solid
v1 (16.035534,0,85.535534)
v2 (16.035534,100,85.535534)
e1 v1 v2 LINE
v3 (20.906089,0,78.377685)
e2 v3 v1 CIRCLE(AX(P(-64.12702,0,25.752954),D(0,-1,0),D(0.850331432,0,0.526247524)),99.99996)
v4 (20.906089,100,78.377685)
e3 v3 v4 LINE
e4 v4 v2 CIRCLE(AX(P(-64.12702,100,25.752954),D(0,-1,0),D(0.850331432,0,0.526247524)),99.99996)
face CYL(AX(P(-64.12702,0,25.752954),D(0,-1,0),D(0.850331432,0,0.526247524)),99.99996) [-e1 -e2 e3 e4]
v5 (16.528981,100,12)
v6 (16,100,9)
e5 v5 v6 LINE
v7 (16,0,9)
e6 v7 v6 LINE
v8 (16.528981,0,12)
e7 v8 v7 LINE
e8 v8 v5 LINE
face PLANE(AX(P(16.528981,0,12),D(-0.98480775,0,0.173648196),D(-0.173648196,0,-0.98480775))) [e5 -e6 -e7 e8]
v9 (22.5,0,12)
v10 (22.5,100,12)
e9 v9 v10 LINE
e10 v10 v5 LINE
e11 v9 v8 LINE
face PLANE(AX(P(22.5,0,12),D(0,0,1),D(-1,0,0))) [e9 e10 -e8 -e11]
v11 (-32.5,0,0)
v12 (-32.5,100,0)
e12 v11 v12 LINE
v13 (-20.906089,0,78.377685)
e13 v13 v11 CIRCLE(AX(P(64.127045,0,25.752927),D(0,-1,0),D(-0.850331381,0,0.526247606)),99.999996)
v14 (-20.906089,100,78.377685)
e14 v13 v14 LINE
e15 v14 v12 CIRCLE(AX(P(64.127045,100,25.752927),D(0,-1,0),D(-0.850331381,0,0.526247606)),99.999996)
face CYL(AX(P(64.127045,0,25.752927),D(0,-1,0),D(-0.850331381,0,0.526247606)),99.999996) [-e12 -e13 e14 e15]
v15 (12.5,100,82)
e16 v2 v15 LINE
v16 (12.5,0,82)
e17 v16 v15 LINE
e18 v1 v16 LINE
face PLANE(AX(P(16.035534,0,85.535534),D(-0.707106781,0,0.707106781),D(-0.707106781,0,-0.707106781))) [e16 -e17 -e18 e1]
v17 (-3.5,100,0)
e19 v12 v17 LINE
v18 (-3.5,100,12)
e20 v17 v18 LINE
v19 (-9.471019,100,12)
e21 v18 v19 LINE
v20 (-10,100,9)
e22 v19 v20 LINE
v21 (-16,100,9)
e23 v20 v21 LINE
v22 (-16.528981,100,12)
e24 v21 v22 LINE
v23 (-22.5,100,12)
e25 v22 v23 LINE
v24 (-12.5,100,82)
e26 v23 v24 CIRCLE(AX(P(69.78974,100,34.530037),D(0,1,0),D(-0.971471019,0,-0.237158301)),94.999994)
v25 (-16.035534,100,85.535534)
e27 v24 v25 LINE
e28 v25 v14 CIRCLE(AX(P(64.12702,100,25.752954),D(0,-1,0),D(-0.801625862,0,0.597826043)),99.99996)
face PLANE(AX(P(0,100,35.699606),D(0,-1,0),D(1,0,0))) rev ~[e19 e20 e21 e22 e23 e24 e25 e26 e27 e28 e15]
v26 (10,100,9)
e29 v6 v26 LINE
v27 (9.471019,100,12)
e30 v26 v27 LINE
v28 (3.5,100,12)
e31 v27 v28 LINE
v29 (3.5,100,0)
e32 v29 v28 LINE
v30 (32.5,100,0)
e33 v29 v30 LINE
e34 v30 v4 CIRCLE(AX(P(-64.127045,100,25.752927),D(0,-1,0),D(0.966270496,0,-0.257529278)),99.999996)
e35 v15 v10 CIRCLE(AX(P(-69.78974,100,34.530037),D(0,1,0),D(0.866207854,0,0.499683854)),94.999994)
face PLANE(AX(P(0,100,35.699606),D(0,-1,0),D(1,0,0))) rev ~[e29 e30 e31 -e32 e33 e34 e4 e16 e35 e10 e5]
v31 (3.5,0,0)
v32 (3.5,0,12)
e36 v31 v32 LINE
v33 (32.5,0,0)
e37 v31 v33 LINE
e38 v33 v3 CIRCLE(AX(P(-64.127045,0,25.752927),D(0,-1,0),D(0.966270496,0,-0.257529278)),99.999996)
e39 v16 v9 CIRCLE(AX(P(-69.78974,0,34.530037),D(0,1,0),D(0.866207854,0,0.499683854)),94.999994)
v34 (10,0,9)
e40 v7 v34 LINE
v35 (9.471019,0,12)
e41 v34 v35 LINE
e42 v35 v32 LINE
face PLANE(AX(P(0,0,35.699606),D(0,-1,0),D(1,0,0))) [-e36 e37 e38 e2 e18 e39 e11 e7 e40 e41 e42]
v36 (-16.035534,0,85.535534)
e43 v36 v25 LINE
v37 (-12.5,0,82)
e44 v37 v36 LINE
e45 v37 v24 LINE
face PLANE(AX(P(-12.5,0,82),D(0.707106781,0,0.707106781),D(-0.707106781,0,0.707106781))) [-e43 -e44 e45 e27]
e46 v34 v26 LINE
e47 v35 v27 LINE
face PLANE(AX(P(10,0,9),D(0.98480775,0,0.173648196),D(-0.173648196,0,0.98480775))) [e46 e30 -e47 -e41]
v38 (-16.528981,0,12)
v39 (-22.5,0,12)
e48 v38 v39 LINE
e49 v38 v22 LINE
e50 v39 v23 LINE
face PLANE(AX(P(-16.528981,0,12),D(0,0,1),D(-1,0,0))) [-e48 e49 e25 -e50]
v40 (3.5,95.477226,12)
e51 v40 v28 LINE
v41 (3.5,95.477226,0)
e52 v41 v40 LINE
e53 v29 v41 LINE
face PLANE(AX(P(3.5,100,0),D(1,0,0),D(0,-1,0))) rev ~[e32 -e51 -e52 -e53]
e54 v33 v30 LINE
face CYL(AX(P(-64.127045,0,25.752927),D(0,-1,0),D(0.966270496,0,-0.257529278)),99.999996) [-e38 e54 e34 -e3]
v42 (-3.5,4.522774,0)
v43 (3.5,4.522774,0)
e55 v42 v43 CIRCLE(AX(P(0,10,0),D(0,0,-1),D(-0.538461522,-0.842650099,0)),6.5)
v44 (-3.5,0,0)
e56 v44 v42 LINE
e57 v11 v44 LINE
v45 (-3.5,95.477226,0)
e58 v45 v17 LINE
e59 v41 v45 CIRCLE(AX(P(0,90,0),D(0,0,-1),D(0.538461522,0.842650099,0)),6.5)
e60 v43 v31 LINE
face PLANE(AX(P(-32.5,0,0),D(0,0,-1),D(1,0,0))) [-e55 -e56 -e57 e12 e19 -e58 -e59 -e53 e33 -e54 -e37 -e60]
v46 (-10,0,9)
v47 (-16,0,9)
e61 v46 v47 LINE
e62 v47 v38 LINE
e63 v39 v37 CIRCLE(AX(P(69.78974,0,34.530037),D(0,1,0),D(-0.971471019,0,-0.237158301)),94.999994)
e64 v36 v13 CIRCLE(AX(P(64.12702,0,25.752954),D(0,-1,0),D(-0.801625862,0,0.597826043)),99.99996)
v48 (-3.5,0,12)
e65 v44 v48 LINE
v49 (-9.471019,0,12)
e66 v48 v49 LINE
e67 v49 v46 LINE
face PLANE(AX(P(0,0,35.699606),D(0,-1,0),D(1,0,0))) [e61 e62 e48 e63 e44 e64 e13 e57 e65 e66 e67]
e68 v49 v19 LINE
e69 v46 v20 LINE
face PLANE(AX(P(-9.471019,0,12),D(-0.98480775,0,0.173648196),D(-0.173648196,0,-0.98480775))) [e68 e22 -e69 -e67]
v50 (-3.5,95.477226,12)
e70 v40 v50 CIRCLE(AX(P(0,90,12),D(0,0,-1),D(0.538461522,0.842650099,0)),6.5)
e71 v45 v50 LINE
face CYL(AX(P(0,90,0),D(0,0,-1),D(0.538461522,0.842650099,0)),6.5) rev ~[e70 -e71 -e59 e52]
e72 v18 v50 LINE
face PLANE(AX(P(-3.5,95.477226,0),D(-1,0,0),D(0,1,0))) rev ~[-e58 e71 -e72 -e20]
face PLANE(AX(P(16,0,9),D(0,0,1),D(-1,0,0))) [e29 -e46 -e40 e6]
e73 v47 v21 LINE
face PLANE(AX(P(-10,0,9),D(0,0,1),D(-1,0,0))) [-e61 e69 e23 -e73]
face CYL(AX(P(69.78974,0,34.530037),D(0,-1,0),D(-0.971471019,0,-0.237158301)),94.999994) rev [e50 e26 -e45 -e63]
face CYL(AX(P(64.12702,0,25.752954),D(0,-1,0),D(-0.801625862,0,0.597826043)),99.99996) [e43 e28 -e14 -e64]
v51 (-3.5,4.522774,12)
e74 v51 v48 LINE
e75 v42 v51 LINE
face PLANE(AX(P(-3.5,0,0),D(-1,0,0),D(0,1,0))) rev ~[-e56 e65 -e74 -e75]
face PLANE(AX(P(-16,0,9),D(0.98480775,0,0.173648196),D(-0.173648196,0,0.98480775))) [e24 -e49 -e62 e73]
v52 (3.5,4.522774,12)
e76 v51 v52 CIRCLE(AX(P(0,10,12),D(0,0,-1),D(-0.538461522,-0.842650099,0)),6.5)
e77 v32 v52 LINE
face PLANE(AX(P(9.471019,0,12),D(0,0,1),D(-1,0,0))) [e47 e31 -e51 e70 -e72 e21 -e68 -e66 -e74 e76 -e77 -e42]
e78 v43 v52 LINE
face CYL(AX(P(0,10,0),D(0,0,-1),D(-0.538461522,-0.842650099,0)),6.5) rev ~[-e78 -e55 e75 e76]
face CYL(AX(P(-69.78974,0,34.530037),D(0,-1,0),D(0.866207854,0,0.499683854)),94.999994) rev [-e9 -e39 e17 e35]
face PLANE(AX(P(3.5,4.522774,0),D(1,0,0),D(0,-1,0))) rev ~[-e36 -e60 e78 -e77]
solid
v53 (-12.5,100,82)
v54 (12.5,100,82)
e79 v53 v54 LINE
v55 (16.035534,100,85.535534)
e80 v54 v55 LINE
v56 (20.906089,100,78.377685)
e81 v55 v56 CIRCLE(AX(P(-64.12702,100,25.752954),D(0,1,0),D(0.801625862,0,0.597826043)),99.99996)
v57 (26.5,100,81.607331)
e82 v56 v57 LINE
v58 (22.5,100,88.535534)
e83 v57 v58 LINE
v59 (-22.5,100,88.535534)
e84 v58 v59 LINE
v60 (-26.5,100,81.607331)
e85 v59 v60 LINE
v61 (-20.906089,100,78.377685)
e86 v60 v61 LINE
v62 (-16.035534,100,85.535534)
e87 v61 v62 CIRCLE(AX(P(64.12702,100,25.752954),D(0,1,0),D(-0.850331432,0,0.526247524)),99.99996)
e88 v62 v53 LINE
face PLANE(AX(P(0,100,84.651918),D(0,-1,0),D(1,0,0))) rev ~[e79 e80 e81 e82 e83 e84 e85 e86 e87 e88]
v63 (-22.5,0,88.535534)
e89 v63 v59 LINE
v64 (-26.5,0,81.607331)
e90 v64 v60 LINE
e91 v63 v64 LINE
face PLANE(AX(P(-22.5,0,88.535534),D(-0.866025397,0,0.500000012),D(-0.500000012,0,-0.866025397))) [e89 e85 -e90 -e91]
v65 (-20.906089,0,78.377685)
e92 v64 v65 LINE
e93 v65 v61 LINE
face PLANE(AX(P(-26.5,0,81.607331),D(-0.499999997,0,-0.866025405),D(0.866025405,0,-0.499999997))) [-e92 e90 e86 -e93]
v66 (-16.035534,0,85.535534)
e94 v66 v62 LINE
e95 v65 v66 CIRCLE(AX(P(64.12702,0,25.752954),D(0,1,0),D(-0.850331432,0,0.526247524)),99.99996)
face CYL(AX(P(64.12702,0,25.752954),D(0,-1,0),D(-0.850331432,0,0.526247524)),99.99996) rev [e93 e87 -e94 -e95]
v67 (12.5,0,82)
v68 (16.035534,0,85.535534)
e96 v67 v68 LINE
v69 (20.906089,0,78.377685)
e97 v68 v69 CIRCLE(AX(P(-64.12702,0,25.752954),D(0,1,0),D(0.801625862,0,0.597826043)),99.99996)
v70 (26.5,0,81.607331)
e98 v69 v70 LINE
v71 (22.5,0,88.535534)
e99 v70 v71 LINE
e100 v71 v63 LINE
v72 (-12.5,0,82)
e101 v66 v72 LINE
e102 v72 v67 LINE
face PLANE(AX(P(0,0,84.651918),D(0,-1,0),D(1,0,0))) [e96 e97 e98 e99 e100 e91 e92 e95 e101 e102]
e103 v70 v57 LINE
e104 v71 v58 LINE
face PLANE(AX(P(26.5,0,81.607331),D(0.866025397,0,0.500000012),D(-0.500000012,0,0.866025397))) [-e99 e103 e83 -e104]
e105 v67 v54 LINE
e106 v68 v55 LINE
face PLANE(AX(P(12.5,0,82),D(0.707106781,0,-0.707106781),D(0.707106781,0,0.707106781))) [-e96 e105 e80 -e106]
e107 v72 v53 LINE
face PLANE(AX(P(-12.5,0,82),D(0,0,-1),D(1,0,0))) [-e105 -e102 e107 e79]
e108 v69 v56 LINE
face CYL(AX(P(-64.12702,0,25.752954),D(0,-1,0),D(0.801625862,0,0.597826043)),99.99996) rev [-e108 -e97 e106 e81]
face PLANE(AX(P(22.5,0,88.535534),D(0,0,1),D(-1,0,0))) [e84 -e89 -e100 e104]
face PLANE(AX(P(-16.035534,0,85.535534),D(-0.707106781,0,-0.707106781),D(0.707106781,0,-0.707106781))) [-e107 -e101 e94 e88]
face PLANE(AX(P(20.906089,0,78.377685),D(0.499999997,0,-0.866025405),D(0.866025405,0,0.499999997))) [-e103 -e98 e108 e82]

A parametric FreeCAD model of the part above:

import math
import FreeCAD as App
import Part
import Sketcher
Q = App.Units.Quantity

doc = App.newDocument("Part")
body = doc.addObject("PartDesign::Body", "Body")

# Sketch on XZ plane
sketch1 = body.newObject("Sketcher::SketchObject", "Sketch")
sketch1.AttachmentSupport = (doc.getObject("XZ_Plane"), [""])
sketch1.MapMode = "FlatFace"
sketch1.addGeometry(Part.LineSegment(App.Vector(-16.5, 12, 0), App.Vector(-22.5, 12, 0)), False)
sketch1.addGeometry(Part.ArcOfCircle(Part.Circle(App.Vector(69.8, 34.5, 0), App.Vector(0, 0, 1), 95), math.radians(150), math.radians(194)), False)
sketch1.addGeometry(Part.LineSegment(App.Vector(-12.5, 82, 0), App.Vector(-16, 85.5, 0)), False)
sketch1.addGeometry(Part.ArcOfCircle(Part.Circle(App.Vector(64.1, 25.8, 0), App.Vector(0, 0, 1), 100), math.radians(143.29), math.radians(148.25)), False)
sketch1.addGeometry(Part.ArcOfCircle(Part.Circle(App.Vector(64.1, 25.8, 0), App.Vector(0, 0, 1), 100), math.radians(148), math.radians(195)), False)
sketch1.addGeometry(Part.LineSegment(App.Vector(-32.5, 0, 0), App.Vector(32.5, 0, 0)), False)
sketch1.addGeometry(Part.ArcOfCircle(Part.Circle(App.Vector(-64.1, 25.8, 0), App.Vector(0, 0, 1), 100), math.radians(-15), math.radians(32)), False)
sketch1.addGeometry(Part.ArcOfCircle(Part.Circle(App.Vector(-64.1, 25.8, 0), App.Vector(0, 0, 1), 100), math.radians(31.75), math.radians(36.71)), False)
sketch1.addGeometry(Part.LineSegment(App.Vector(16, 85.5, 0), App.Vector(12.5, 82, 0)), False)
sketch1.addGeometry(Part.ArcOfCircle(Part.Circle(App.Vector(-69.8, 34.5, 0), App.Vector(0, 0, 1), 95), math.radians(-14), math.radians(30)), False)
sketch1.addGeometry(Part.LineSegment(App.Vector(22.5, 12, 0), App.Vector(16.5, 12, 0)), False)
sketch1.addGeometry(Part.LineSegment(App.Vector(16.5, 12, 0), App.Vector(16, 9, 0)), False)
sketch1.addGeometry(Part.LineSegment(App.Vector(16, 9, 0), App.Vector(10, 9, 0)), False)
sketch1.addGeometry(Part.LineSegment(App.Vector(10, 9, 0), App.Vector(9.5, 12, 0)), False)
sketch1.addGeometry(Part.LineSegment(App.Vector(9.5, 12, 0), App.Vector(-9.5, 12, 0)), False)
sketch1.addGeometry(Part.LineSegment(App.Vector(-9.5, 12, 0), App.Vector(-10, 9, 0)), False)
sketch1.addGeometry(Part.LineSegment(App.Vector(-10, 9, 0), App.Vector(-16, 9, 0)), False)
sketch1.addGeometry(Part.LineSegment(App.Vector(-16, 9, 0), App.Vector(-16.5, 12, 0)), False)
sketch1.addConstraint(Sketcher.Constraint("Coincident", 0, 2, 1, 2))
sketch1.addConstraint(Sketcher.Constraint("Coincident", 1, 1, 2, 1))
sketch1.addConstraint(Sketcher.Constraint("Coincident", 2, 2, 3, 1))
sketch1.addConstraint(Sketcher.Constraint("Tangent", 3, 2, 4, 1))
sketch1.addConstraint(Sketcher.Constraint("Coincident", 4, 2, 5, 1))
sketch1.addConstraint(Sketcher.Constraint("Coincident", 5, 2, 6, 1))
sketch1.addConstraint(Sketcher.Constraint("Tangent", 6, 2, 7, 1))
sketch1.addConstraint(Sketcher.Constraint("Coincident", 7, 2, 8, 1))
sketch1.addConstraint(Sketcher.Constraint("Coincident", 8, 2, 9, 2))
sketch1.addConstraint(Sketcher.Constraint("Coincident", 9, 1, 10, 1))
sketch1.addConstraint(Sketcher.Constraint("Coincident", 10, 2, 11, 1))
sketch1.addConstraint(Sketcher.Constraint("Coincident", 11, 2, 12, 1))
sketch1.addConstraint(Sketcher.Constraint("Coincident", 12, 2, 13, 1))
sketch1.addConstraint(Sketcher.Constraint("Coincident", 13, 2, 14, 1))
sketch1.addConstraint(Sketcher.Constraint("Coincident", 14, 2, 15, 1))
sketch1.addConstraint(Sketcher.Constraint("Coincident", 15, 2, 16, 1))
sketch1.addConstraint(Sketcher.Constraint("Coincident", 16, 2, 17, 1))
sketch1.addConstraint(Sketcher.Constraint("Coincident", 17, 2, 0, 1))
sketch1.addConstraint(Sketcher.Constraint("Horizontal", 0))
sketch1.addConstraint(Sketcher.Constraint("Horizontal", 5))
sketch1.addConstraint(Sketcher.Constraint("Horizontal", 10))
sketch1.addConstraint(Sketcher.Constraint("Horizontal", 12))
sketch1.addConstraint(Sketcher.Constraint("Horizontal", 14))
sketch1.addConstraint(Sketcher.Constraint("Horizontal", 16))
sketch1.addConstraint(Sketcher.Constraint("Equal", 4, 6))
sketch1.addConstraint(Sketcher.Constraint("Equal", 3, 7))
sketch1.addConstraint(Sketcher.Constraint("Equal", 1, 9))
sketch1.addConstraint(Sketcher.Constraint("Symmetric", 4, 2, 5, 2, -1, 1))
sketch1.addConstraint(Sketcher.Constraint("Symmetric", 1, 3, 9, 3, -2))
sketch1.addConstraint(Sketcher.Constraint("Symmetric", 3, 2, 6, 2, -2))
sketch1.addConstraint(Sketcher.Constraint("Symmetric", 12, 2, 15, 2, -2))
sketch1.addConstraint(Sketcher.Constraint("Symmetric", 10, 2, 17, 2, -2))
sketch1.addConstraint(Sketcher.Constraint("Perpendicular", 2, 8))
sketch1.addConstraint(Sketcher.Constraint("Parallel", 11, 15))
sketch1.addConstraint(Sketcher.Constraint("Parallel", 13, 17))
sketch1.addConstraint(Sketcher.Constraint("Horizontal", 2, 2, 7, 2))
sketch1.addConstraint(Sketcher.Constraint("Horizontal", 1, 1, 8, 2))
sketch1.addConstraint(Sketcher.Constraint("Horizontal", 10, 2, 13, 2))
sketch1.addConstraint(Sketcher.Constraint("Equal", 12, 16))
sketch1.addConstraint(Sketcher.Constraint("DistanceX", 5, 1, 5, 2, Q("65 mm")))
sketch1.addConstraint(Sketcher.Constraint("DistanceX", 12, 2, 12, 1, Q("6 mm")))
sketch1.addConstraint(Sketcher.Constraint("Angle", 11, Q("-100.000001 deg")))
sketch1.addConstraint(Sketcher.Constraint("Distance", 2, Q("5 mm")))
sketch1.addConstraint(Sketcher.Constraint("DistanceY", -1, 1, 0, 2, Q("12 mm")))
sketch1.addConstraint(Sketcher.Constraint("DistanceY", -1, 1, 1, 1, Q("82 mm")))
sketch1.addConstraint(Sketcher.Constraint("DistanceX", -1, 1, 11, 2, Q("16 mm")))
sketch1.addConstraint(Sketcher.Constraint("DistanceY", -1, 1, 11, 2, Q("9 mm")))
sketch1.addConstraint(Sketcher.Constraint("DistanceX", 0, 2, 1, 1, Q("10 mm")))
sketch1.addConstraint(Sketcher.Constraint("DistanceX", 4, 2, 0, 2, Q("10 mm")))
sketch1.addConstraint(Sketcher.Constraint("Radius", 3, Q("99.99996 mm")))
sketch1.addConstraint(Sketcher.Constraint("Radius", 1, Q("94.999994 mm")))
sketch1.addConstraint(Sketcher.Constraint("Radius", 4, Q("99.999996 mm")))
sketch1.addConstraint(Sketcher.Constraint("DistanceX", 3, 2, -1, 1, Q("20.906089 mm")))
pad1 = body.newObject("PartDesign::Pad", "Pad")
pad1.Profile = sketch1
pad1.Length = 100
pad1.Reversed = True

# Sketch on XY plane
sketch2 = body.newObject("Sketcher::SketchObject", "Sketch001")
sketch2.AttachmentSupport = (doc.getObject("XY_Plane"), [""])
sketch2.MapMode = "FlatFace"
sketch2.addGeometry(Part.LineSegment(App.Vector(-3.5, 0, 0), App.Vector(-3.5, 4.5, 0)), False)
sketch2.addGeometry(Part.ArcOfCircle(Part.Circle(App.Vector(0, 10, 0), App.Vector(0, 0, 1), 6.5), math.radians(-57), math.radians(237)), False)
sketch2.addGeometry(Part.LineSegment(App.Vector(3.5, 4.5, 0), App.Vector(3.5, 0, 0)), False)
sketch2.addGeometry(Part.LineSegment(App.Vector(3.5, 0, 0), App.Vector(-3.5, 0, 0)), False)
sketch2.addGeometry(Part.LineSegment(App.Vector(-3.5, 95.5, 0), App.Vector(-3.5, 100, 0)), False)
sketch2.addGeometry(Part.LineSegment(App.Vector(-3.5, 100, 0), App.Vector(3.5, 100, 0)), False)
sketch2.addGeometry(Part.LineSegment(App.Vector(3.5, 100, 0), App.Vector(3.5, 95.5, 0)), False)
sketch2.addGeometry(Part.ArcOfCircle(Part.Circle(App.Vector(0, 90, 0), App.Vector(0, 0, 1), 6.5), math.radians(123), math.radians(417)), False)
sketch2.addConstraint(Sketcher.Constraint("Coincident", 0, 2, 1, 2))
sketch2.addConstraint(Sketcher.Constraint("Coincident", 1, 1, 2, 1))
sketch2.addConstraint(Sketcher.Constraint("Coincident", 2, 2, 3, 1))
sketch2.addConstraint(Sketcher.Constraint("Coincident", 3, 2, 0, 1))
sketch2.addConstraint(Sketcher.Constraint("Coincident", 4, 2, 5, 1))
sketch2.addConstraint(Sketcher.Constraint("Coincident", 5, 2, 6, 1))
sketch2.addConstraint(Sketcher.Constraint("Coincident", 6, 2, 7, 2))
sketch2.addConstraint(Sketcher.Constraint("Coincident", 7, 1, 4, 1))
sketch2.addConstraint(Sketcher.Constraint("Vertical", 0))
sketch2.addConstraint(Sketcher.Constraint("Vertical", 2))
sketch2.addConstraint(Sketcher.Constraint("Horizontal", 3))
sketch2.addConstraint(Sketcher.Constraint("Vertical", 4))
sketch2.addConstraint(Sketcher.Constraint("Horizontal", 5))
sketch2.addConstraint(Sketcher.Constraint("Vertical", 6))
sketch2.addConstraint(Sketcher.Constraint("Equal", 1, 7))
sketch2.addConstraint(Sketcher.Constraint("Symmetric", 2, 2, 3, 2, -1, 1))
sketch2.addConstraint(Sketcher.Constraint("Symmetric", 6, 2, 7, 1, -2))
sketch2.addConstraint(Sketcher.Constraint("PointOnObject", 1, 3, -2))
sketch2.addConstraint(Sketcher.Constraint("Vertical", 3, 2, 4, 2))
sketch2.addConstraint(Sketcher.Constraint("Equal", 2, 4))
sketch2.addConstraint(Sketcher.Constraint("Radius", 1, Q("6.5 mm")))
sketch2.addConstraint(Sketcher.Constraint("DistanceX", 3, 2, 3, 1, Q("7 mm")))
sketch2.addConstraint(Sketcher.Constraint("DistanceY", -1, 1, 1, 3, Q("10 mm")))
sketch2.addConstraint(Sketcher.Constraint("DistanceY", -1, 1, 7, 3, Q("90 mm")))
pocket1 = body.newObject("PartDesign::Pocket", "Pocket")
pocket1.Profile = sketch2
pocket1.Length = 25
pocket1.Reversed = True
body2 = doc.addObject("PartDesign::Body", "Body001")

# Sketch on XZ plane
sketch3 = body2.newObject("Sketcher::SketchObject", "Sketch002")
sketch3.AttachmentSupport = (doc.getObject("XZ_Plane001"), [""])
sketch3.MapMode = "FlatFace"
sketch3.addGeometry(Part.LineSegment(App.Vector(-16, 86, 0), App.Vector(-12, 82, 0)), False)
sketch3.addGeometry(Part.LineSegment(App.Vector(-12, 82, 0), App.Vector(12, 82, 0)), False)
sketch3.addGeometry(Part.LineSegment(App.Vector(12, 82, 0), App.Vector(16, 86, 0)), False)
sketch3.addGeometry(Part.ArcOfCircle(Part.Circle(App.Vector(-64, 26, 0), App.Vector(0, 0, 1), 100), math.radians(31.75), math.radians(36.71)), False)
sketch3.addGeometry(Part.LineSegment(App.Vector(21, 78, 0), App.Vector(26, 82, 0)), False)
sketch3.addGeometry(Part.LineSegment(App.Vector(26, 82, 0), App.Vector(22, 89, 0)), False)
sketch3.addGeometry(Part.LineSegment(App.Vector(22, 89, 0), App.Vector(-22, 89, 0)), False)
sketch3.addGeometry(Part.LineSegment(App.Vector(-22, 89, 0), App.Vector(-26, 82, 0)), False)
sketch3.addGeometry(Part.LineSegment(App.Vector(-26, 82, 0), App.Vector(-21, 78, 0)), False)
sketch3.addGeometry(Part.ArcOfCircle(Part.Circle(App.Vector(64, 26, 0), App.Vector(0, 0, 1), 100), math.radians(143.29), math.radians(148.25)), False)
sketch3.addConstraint(Sketcher.Constraint("Coincident", 0, 2, 1, 1))
sketch3.addConstraint(Sketcher.Constraint("Coincident", 1, 2, 2, 1))
sketch3.addConstraint(Sketcher.Constraint("Coincident", 2, 2, 3, 2))
sketch3.addConstraint(Sketcher.Constraint("Coincident", 3, 1, 4, 1))
sketch3.addConstraint(Sketcher.Constraint("Coincident", 4, 2, 5, 1))
sketch3.addConstraint(Sketcher.Constraint("Coincident", 5, 2, 6, 1))
sketch3.addConstraint(Sketcher.Constraint("Coincident", 6, 2, 7, 1))
sketch3.addConstraint(Sketcher.Constraint("Coincident", 7, 2, 8, 1))
sketch3.addConstraint(Sketcher.Constraint("Coincident", 8, 2, 9, 2))
sketch3.addConstraint(Sketcher.Constraint("Coincident", 9, 1, 0, 1))
sketch3.addConstraint(Sketcher.Constraint("Horizontal", 1))
sketch3.addConstraint(Sketcher.Constraint("Horizontal", 6))
sketch3.addConstraint(Sketcher.Constraint("Equal", 3, 9))
sketch3.addConstraint(Sketcher.Constraint("Symmetric", 3, 3, 9, 3, -2))
sketch3.addConstraint(Sketcher.Constraint("Symmetric", 4, 2, 7, 2, -2))
sketch3.addConstraint(Sketcher.Constraint("Perpendicular", 0, 2))
sketch3.addConstraint(Sketcher.Constraint("Perpendicular", 4, 5))
sketch3.addConstraint(Sketcher.Constraint("Perpendicular", 7, 8))
sketch3.addConstraint(Sketcher.Constraint("Horizontal", 3, 1, 8, 2))
sketch3.addConstraint(Sketcher.Constraint("Horizontal", 2, 2, 9, 1))
sketch3.addConstraint(Sketcher.Constraint("Equal", 0, 2))
sketch3.addConstraint(Sketcher.Constraint("DistanceX", 1, 1, 1, 2, Q("25 mm")))
sketch3.addConstraint(Sketcher.Constraint("DistanceX", 6, 2, 6, 1, Q("45 mm")))
sketch3.addConstraint(Sketcher.Constraint("Angle", 4, Q("30 deg")))
sketch3.addConstraint(Sketcher.Constraint("Distance", 0, Q("5 mm")))
sketch3.addConstraint(Sketcher.Constraint("Distance", 5, Q("8 mm")))
sketch3.addConstraint(Sketcher.Constraint("DistanceY", -1, 1, 0, 2, Q("82 mm")))
sketch3.addConstraint(Sketcher.Constraint("DistanceY", 2, 2, 5, 2, Q("3 mm")))
sketch3.addConstraint(Sketcher.Constraint("Radius", 3, Q("99.99996 mm")))
sketch3.addConstraint(Sketcher.Constraint("DistanceX", 3, 3, -1, 1, Q("64.12702 mm")))
pad2 = body2.newObject("PartDesign::Pad", "Pad001")
pad2.Profile = sketch3
pad2.Length = 100
pad2.Reversed = True

doc.recompute()
